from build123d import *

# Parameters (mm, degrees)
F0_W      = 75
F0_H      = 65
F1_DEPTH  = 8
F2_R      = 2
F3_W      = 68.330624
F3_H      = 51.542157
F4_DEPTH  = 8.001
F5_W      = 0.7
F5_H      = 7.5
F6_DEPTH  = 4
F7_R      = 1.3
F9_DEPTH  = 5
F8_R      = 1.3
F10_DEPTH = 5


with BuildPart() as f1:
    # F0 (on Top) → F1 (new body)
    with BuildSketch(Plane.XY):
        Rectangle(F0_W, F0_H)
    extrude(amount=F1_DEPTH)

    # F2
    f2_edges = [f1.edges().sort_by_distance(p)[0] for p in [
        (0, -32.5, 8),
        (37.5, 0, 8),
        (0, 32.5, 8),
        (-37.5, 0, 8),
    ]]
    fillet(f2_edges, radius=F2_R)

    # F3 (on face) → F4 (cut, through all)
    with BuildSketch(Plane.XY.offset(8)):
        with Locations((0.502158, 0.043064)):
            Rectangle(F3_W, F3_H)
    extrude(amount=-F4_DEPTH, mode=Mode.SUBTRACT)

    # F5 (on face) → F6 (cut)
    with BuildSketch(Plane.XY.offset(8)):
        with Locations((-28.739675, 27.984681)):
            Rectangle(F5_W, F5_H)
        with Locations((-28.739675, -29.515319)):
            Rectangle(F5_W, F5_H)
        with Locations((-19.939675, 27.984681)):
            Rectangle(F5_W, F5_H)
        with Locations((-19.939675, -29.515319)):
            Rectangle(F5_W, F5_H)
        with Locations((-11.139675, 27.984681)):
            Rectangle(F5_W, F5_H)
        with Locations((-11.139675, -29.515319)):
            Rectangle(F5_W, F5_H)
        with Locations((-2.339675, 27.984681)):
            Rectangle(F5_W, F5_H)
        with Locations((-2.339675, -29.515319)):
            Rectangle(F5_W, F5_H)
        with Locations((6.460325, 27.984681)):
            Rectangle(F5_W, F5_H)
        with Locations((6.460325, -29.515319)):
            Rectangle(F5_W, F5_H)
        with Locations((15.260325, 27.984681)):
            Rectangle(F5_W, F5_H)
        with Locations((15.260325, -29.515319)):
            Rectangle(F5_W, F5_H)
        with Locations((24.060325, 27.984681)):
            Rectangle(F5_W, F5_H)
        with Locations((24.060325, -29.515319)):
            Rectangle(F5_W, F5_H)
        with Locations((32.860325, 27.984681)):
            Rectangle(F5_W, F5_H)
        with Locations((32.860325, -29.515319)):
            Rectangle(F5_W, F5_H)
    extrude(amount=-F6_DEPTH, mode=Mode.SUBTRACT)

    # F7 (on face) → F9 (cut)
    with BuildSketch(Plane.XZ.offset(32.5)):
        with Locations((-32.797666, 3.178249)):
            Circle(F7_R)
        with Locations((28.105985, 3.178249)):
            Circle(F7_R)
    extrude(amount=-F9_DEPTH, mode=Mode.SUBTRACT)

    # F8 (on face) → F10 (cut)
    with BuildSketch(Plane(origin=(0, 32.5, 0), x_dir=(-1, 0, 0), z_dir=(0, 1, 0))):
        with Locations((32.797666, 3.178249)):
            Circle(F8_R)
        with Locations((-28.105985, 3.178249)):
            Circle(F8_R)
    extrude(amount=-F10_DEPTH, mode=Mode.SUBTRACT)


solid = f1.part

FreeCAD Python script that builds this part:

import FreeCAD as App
import Part
import Sketcher

V = App.Vector
Q = App.Units.Quantity


def edges_at(feature, points):
    """Names of the edges that pass closest to the given points."""
    edges = feature.Shape.Edges
    near = lambda p: min(range(len(edges)), key=lambda i: edges[i].distToShape(Part.Vertex(*p))[0])
    return sorted({f"Edge{near(p) + 1}" for p in points})


def add_polygon(sketch, points):
    """Adds a closed chain of lines whose ends are joined by coincident constraints."""
    first, n = sketch.GeometryCount, len(points)
    for a, b in zip(points, points[1:] + points[:1]):
        sketch.addGeometry(Part.LineSegment(App.Vector(*a, 0), App.Vector(*b, 0)), False)
    for i in range(n):
        sketch.addConstraint(Sketcher.Constraint("Coincident", first + i, 2, first + (i + 1) % n, 1))

doc = App.newDocument("Part")
body = doc.addObject("PartDesign::Body", "Body")

sketch1 = body.newObject("Sketcher::SketchObject", "Sketch")
sketch1.AttachmentSupport = (doc.getObject("XY_Plane"), [""])
sketch1.MapMode = "FlatFace"
add_polygon(sketch1, [(-38, 32), (-38, -32), (38, -32), (38, 32)])
sketch1.addConstraint([
    Sketcher.Constraint("Vertical", 0),
    Sketcher.Constraint("Horizontal", 1),
    Sketcher.Constraint("Vertical", 2),
    Sketcher.Constraint("Horizontal", 3),
    Sketcher.Constraint("Symmetric", 0, 2, 2, 2, -1, 1),
    Sketcher.Constraint("DistanceX", 1, 1, 1, 2, Q("75 mm")),
    Sketcher.Constraint("DistanceY", 0, 2, 0, 1, Q("65 mm")),
])
pad1 = body.newObject("PartDesign::Pad", "Pad")
pad1.Profile = sketch1
pad1.Length = 8
doc.recompute()

fillet = body.newObject("PartDesign::Fillet", "Fillet")
fillet.Base = (pad1, edges_at(pad1, [
    (0, -32.5, 8),
    (37.5, 0, 8),
    (0, 32.5, 8),
    (-37.5, 0, 8),
]))
fillet.Radius = 2

sketch2 = body.newObject("Sketcher::SketchObject", "Sketch001")
sketch2.AttachmentSupport = (doc.getObject("XY_Plane"), [""])
sketch2.MapMode = "FlatFace"
sketch2.AttachmentOffset = App.Placement(V(0, 0, 8), App.Rotation())
add_polygon(sketch2, [(-34, 26), (-34, -26), (35, -26), (35, 26)])
sketch2.addConstraint([
    Sketcher.Constraint("Vertical", 0),
    Sketcher.Constraint("Horizontal", 1),
    Sketcher.Constraint("Vertical", 2),
    Sketcher.Constraint("Horizontal", 3),
    Sketcher.Constraint("DistanceX", 1, 1, 1, 2, Q("68.330624 mm")),
    Sketcher.Constraint("DistanceY", 0, 2, 0, 1, Q("51.542157 mm")),
    Sketcher.Constraint("DistanceX", -1, 1, 1, 2, Q("34.66747 mm")),
    Sketcher.Constraint("DistanceY", 0, 2, -1, 1, Q("25.728015 mm")),
])
pocket1 = body.newObject("PartDesign::Pocket", "Pocket")
pocket1.Profile = sketch2
pocket1.Type = "ThroughAll"

sketch3 = body.newObject("Sketcher::SketchObject", "Sketch002")
sketch3.AttachmentSupport = (doc.getObject("XY_Plane"), [""])
sketch3.MapMode = "FlatFace"
sketch3.AttachmentOffset = App.Placement(V(0, 0, 8), App.Rotation())
add_polygon(sketch3, [(-29.1, 31.7), (-29.1, 24.2), (-28.4, 24.2), (-28.4, 31.7)])
add_polygon(sketch3, [(-29.1, -25.8), (-29.1, -33.3), (-28.4, -33.3), (-28.4, -25.8)])
add_polygon(sketch3, [(-20.3, 31.7), (-20.3, 24.2), (-19.6, 24.2), (-19.6, 31.7)])
add_polygon(sketch3, [(-20.3, -25.8), (-20.3, -33.3), (-19.6, -33.3), (-19.6, -25.8)])
add_polygon(sketch3, [(-11.5, 31.7), (-11.5, 24.2), (-10.8, 24.2), (-10.8, 31.7)])
add_polygon(sketch3, [(-11.5, -25.8), (-11.5, -33.3), (-10.8, -33.3), (-10.8, -25.8)])
add_polygon(sketch3, [(-2.7, 31.7), (-2.7, 24.2), (-2, 24.2), (-2, 31.7)])
add_polygon(sketch3, [(-2.7, -25.8), (-2.7, -33.3), (-2, -33.3), (-2, -25.8)])
add_polygon(sketch3, [(6.1, 31.7), (6.1, 24.2), (6.8, 24.2), (6.8, 31.7)])
add_polygon(sketch3, [(6.1, -25.8), (6.1, -33.3), (6.8, -33.3), (6.8, -25.8)])
add_polygon(sketch3, [(14.9, 31.7), (14.9, 24.2), (15.6, 24.2), (15.6, 31.7)])
add_polygon(sketch3, [(14.9, -25.8), (14.9, -33.3), (15.6, -33.3), (15.6, -25.8)])
add_polygon(sketch3, [(23.7, 31.7), (23.7, 24.2), (24.4, 24.2), (24.4, 31.7)])
add_polygon(sketch3, [(23.7, -25.8), (23.7, -33.3), (24.4, -33.3), (24.4, -25.8)])
add_polygon(sketch3, [(32.5, 31.7), (32.5, 24.2), (33.2, 24.2), (33.2, 31.7)])
add_polygon(sketch3, [(32.5, -25.8), (32.5, -33.3), (33.2, -33.3), (33.2, -25.8)])
sketch3.addConstraint([
    Sketcher.Constraint("Vertical", 0),
    Sketcher.Constraint("Horizontal", 1),
    Sketcher.Constraint("Vertical", 2),
    Sketcher.Constraint("Horizontal", 3),
    Sketcher.Constraint("Vertical", 4),
    Sketcher.Constraint("Horizontal", 5),
    Sketcher.Constraint("Vertical", 6),
    Sketcher.Constraint("Horizontal", 7),
    Sketcher.Constraint("Vertical", 8),
    Sketcher.Constraint("Horizontal", 9),
    Sketcher.Constraint("Vertical", 10),
    Sketcher.Constraint("Horizontal", 11),
    Sketcher.Constraint("Vertical", 12),
    Sketcher.Constraint("Horizontal", 13),
    Sketcher.Constraint("Vertical", 14),
    Sketcher.Constraint("Horizontal", 15),
    Sketcher.Constraint("Vertical", 16),
    Sketcher.Constraint("Horizontal", 17),
    Sketcher.Constraint("Vertical", 18),
    Sketcher.Constraint("Horizontal", 19),
    Sketcher.Constraint("Vertical", 20),
    Sketcher.Constraint("Horizontal", 21),
    Sketcher.Constraint("Vertical", 22),
    Sketcher.Constraint("Horizontal", 23),
    Sketcher.Constraint("Vertical", 24),
    Sketcher.Constraint("Horizontal", 25),
    Sketcher.Constraint("Vertical", 26),
    Sketcher.Constraint("Horizontal", 27),
    Sketcher.Constraint("Vertical", 28),
    Sketcher.Constraint("Horizontal", 29),
    Sketcher.Constraint("Vertical", 30),
    Sketcher.Constraint("Horizontal", 31),
    Sketcher.Constraint("Vertical", 32),
    Sketcher.Constraint("Horizontal", 33),
    Sketcher.Constraint("Vertical", 34),
    Sketcher.Constraint("Horizontal", 35),
    Sketcher.Constraint("Vertical", 36),
    Sketcher.Constraint("Horizontal", 37),
    Sketcher.Constraint("Vertical", 38),
    Sketcher.Constraint("Horizontal", 39),
    Sketcher.Constraint("Vertical", 40),
    Sketcher.Constraint("Horizontal", 41),
    Sketcher.Constraint("Vertical", 42),
    Sketcher.Constraint("Horizontal", 43),
    Sketcher.Constraint("Vertical", 44),
    Sketcher.Constraint("Horizontal", 45),
    Sketcher.Constraint("Vertical", 46),
    Sketcher.Constraint("Horizontal", 47),
    Sketcher.Constraint("Vertical", 48),
    Sketcher.Constraint("Horizontal", 49),
    Sketcher.Constraint("Vertical", 50),
    Sketcher.Constraint("Horizontal", 51),
    Sketcher.Constraint("Vertical", 52),
    Sketcher.Constraint("Horizontal", 53),
    Sketcher.Constraint("Vertical", 54),
    Sketcher.Constraint("Horizontal", 55),
    Sketcher.Constraint("Vertical", 56),
    Sketcher.Constraint("Horizontal", 57),
    Sketcher.Constraint("Vertical", 58),
    Sketcher.Constraint("Horizontal", 59),
    Sketcher.Constraint("Vertical", 60),
    Sketcher.Constraint("Horizontal", 61),
    Sketcher.Constraint("Vertical", 62),
    Sketcher.Constraint("Horizontal", 63),
    Sketcher.Constraint("Horizontal", 1, 2, 8, 2),
    Sketcher.Constraint("Horizontal", 3, 2, 10, 2),
    Sketcher.Constraint("Horizontal", 5, 2, 12, 2),
    Sketcher.Constraint("Horizontal", 7, 2, 14, 2),
    Sketcher.Constraint("Horizontal", 9, 2, 16, 2),
    Sketcher.Constraint("Horizontal", 11, 2, 18, 2),
    Sketcher.Constraint("Horizontal", 13, 2, 20, 2),
    Sketcher.Constraint("Horizontal", 15, 2, 22, 2),
    Sketcher.Constraint("Horizontal", 17, 2, 24, 2),
    Sketcher.Constraint("Horizontal", 19, 2, 26, 2),
    Sketcher.Constraint("Horizontal", 21, 2, 28, 2),
    Sketcher.Constraint("Horizontal", 23, 2, 30, 2),
    Sketcher.Constraint("Horizontal", 25, 2, 32, 2),
    Sketcher.Constraint("Horizontal", 27, 2, 34, 2),
    Sketcher.Constraint("Horizontal", 29, 2, 36, 2),
    Sketcher.Constraint("Horizontal", 31, 2, 38, 2),
    Sketcher.Constraint("Horizontal", 33, 2, 40, 2),
    Sketcher.Constraint("Horizontal", 35, 2, 42, 2),
    Sketcher.Constraint("Horizontal", 37, 2, 44, 2),
    Sketcher.Constraint("Horizontal", 39, 2, 46, 2),
    Sketcher.Constraint("Horizontal", 41, 2, 48, 2),
    Sketcher.Constraint("Horizontal", 43, 2, 50, 2),
    Sketcher.Constraint("Horizontal", 45, 2, 52, 2),
    Sketcher.Constraint("Horizontal", 47, 2, 54, 2),
    Sketcher.Constraint("Horizontal", 49, 2, 56, 2),
    Sketcher.Constraint("Horizontal", 51, 2, 58, 2),
    Sketcher.Constraint("Horizontal", 53, 2, 60, 2),
    Sketcher.Constraint("Horizontal", 55, 2, 62, 2),
    Sketcher.Constraint("Vertical", 3, 2, 4, 2),
    Sketcher.Constraint("Vertical", 2, 2, 5, 2),
    Sketcher.Constraint("Vertical", 11, 2, 12, 2),
    Sketcher.Constraint("Vertical", 10, 2, 13, 2),
    Sketcher.Constraint("Vertical", 19, 2, 20, 2),
    Sketcher.Constraint("Vertical", 18, 2, 21, 2),
    Sketcher.Constraint("Vertical", 27, 2, 28, 2),
    Sketcher.Constraint("Vertical", 26, 2, 29, 2),
    Sketcher.Constraint("Vertical", 35, 2, 36, 2),
    Sketcher.Constraint("Vertical", 34, 2, 37, 2),
    Sketcher.Constraint("Vertical", 43, 2, 44, 2),
    Sketcher.Constraint("Vertical", 42, 2, 45, 2),
    Sketcher.Constraint("Vertical", 51, 2, 52, 2),
    Sketcher.Constraint("Vertical", 50, 2, 53, 2),
    Sketcher.Constraint("Vertical", 59, 2, 60, 2),
    Sketcher.Constraint("Vertical", 58, 2, 61, 2),
    Sketcher.Constraint("Equal", 7, 9),
    Sketcher.Constraint("Equal", 15, 17),
    Sketcher.Constraint("Equal", 23, 25),
    Sketcher.Constraint("Equal", 31, 33),
    Sketcher.Constraint("Equal", 39, 41),
    Sketcher.Constraint("Equal", 47, 49),
    Sketcher.Constraint("Equal", 55, 57),
    Sketcher.Constraint("Equal", 2, 4),
    Sketcher.Constraint("DistanceX", 1, 1, 1, 2, Q("0.7 mm")),
    Sketcher.Constraint("DistanceY", 0, 2, 0, 1, Q("7.5 mm")),
    Sketcher.Constraint("DistanceY", -1, 1, 0, 2, Q("24.234681 mm")),
    Sketcher.Constraint("DistanceY", 4, 2, -1, 1, Q("33.265319 mm")),
    Sketcher.Constraint("DistanceX", 0, 2, -1, 1, Q("29.089675 mm")),
    Sketcher.Constraint("DistanceX", 8, 2, -1, 1, Q("20.289675 mm")),
    Sketcher.Constraint("DistanceX", 16, 2, -1, 1, Q("11.489675 mm")),
    Sketcher.Constraint("DistanceX", 24, 2, -1, 1, Q("2.689675 mm")),
    Sketcher.Constraint("DistanceX", -1, 1, 32, 2, Q("6.110325 mm")),
    Sketcher.Constraint("DistanceX", -1, 1, 40, 2, Q("14.910325 mm")),
    Sketcher.Constraint("DistanceX", -1, 1, 48, 2, Q("23.710325 mm")),
    Sketcher.Constraint("DistanceX", -1, 1, 56, 2, Q("32.510325 mm")),
])
pocket2 = body.newObject("PartDesign::Pocket", "Pocket001")
pocket2.Profile = sketch3
pocket2.Length = 4

sketch4 = body.newObject("Sketcher::SketchObject", "Sketch003")
sketch4.AttachmentSupport = (doc.getObject("XZ_Plane"), [""])
sketch4.MapMode = "FlatFace"
sketch4.AttachmentOffset = App.Placement(V(0, 0, 32.5), App.Rotation())
sketch4.addGeometry([
    Part.Circle(V(-32.8, 3.2, 0), V(0, 0, 1), 1.3),
    Part.Circle(V(28.1, 3.2, 0), V(0, 0, 1), 1.3),
], False)
sketch4.addConstraint([
    Sketcher.Constraint("Equal", 0, 1),
    Sketcher.Constraint("Horizontal", 0, 3, 1, 3),
    Sketcher.Constraint("Diameter", 0, Q("2.6 mm")),
    Sketcher.Constraint("DistanceY", -1, 1, 0, 3, Q("3.178249 mm")),
    Sketcher.Constraint("DistanceX", 0, 3, 1, 3, Q("60.903651 mm")),
    Sketcher.Constraint("DistanceX", 0, 3, -1, 1, Q("32.797666 mm")),
])
pocket3 = body.newObject("PartDesign::Pocket", "Pocket002")
pocket3.Profile = sketch4
pocket3.Length = 5

sketch5 = body.newObject("Sketcher::SketchObject", "Sketch004")
sketch5.AttachmentSupport = (doc.getObject("XZ_Plane"), [""])
sketch5.MapMode = "FlatFace"
sketch5.AttachmentOffset = App.Placement(V(0, 0, -32.5), App.Rotation())
sketch5.addGeometry([
    Part.Circle(V(-32.8, 3.2, 0), V(0, 0, 1), 1.3),
    Part.Circle(V(28.1, 3.2, 0), V(0, 0, 1), 1.3),
], False)
sketch5.addConstraint([
    Sketcher.Constraint("Equal", 0, 1),
    Sketcher.Constraint("Horizontal", 0, 3, 1, 3),
    Sketcher.Constraint("Diameter", 0, Q("2.6 mm")),
    Sketcher.Constraint("DistanceY", -1, 1, 0, 3, Q("3.178249 mm")),
    Sketcher.Constraint("DistanceX", 0, 3, 1, 3, Q("60.903651 mm")),
    Sketcher.Constraint("DistanceX", 0, 3, -1, 1, Q("32.797666 mm")),
])
pocket4 = body.newObject("PartDesign::Pocket", "Pocket003")
pocket4.Profile = sketch5
pocket4.Length = 5
pocket4.Reversed = True

doc.recompute()
